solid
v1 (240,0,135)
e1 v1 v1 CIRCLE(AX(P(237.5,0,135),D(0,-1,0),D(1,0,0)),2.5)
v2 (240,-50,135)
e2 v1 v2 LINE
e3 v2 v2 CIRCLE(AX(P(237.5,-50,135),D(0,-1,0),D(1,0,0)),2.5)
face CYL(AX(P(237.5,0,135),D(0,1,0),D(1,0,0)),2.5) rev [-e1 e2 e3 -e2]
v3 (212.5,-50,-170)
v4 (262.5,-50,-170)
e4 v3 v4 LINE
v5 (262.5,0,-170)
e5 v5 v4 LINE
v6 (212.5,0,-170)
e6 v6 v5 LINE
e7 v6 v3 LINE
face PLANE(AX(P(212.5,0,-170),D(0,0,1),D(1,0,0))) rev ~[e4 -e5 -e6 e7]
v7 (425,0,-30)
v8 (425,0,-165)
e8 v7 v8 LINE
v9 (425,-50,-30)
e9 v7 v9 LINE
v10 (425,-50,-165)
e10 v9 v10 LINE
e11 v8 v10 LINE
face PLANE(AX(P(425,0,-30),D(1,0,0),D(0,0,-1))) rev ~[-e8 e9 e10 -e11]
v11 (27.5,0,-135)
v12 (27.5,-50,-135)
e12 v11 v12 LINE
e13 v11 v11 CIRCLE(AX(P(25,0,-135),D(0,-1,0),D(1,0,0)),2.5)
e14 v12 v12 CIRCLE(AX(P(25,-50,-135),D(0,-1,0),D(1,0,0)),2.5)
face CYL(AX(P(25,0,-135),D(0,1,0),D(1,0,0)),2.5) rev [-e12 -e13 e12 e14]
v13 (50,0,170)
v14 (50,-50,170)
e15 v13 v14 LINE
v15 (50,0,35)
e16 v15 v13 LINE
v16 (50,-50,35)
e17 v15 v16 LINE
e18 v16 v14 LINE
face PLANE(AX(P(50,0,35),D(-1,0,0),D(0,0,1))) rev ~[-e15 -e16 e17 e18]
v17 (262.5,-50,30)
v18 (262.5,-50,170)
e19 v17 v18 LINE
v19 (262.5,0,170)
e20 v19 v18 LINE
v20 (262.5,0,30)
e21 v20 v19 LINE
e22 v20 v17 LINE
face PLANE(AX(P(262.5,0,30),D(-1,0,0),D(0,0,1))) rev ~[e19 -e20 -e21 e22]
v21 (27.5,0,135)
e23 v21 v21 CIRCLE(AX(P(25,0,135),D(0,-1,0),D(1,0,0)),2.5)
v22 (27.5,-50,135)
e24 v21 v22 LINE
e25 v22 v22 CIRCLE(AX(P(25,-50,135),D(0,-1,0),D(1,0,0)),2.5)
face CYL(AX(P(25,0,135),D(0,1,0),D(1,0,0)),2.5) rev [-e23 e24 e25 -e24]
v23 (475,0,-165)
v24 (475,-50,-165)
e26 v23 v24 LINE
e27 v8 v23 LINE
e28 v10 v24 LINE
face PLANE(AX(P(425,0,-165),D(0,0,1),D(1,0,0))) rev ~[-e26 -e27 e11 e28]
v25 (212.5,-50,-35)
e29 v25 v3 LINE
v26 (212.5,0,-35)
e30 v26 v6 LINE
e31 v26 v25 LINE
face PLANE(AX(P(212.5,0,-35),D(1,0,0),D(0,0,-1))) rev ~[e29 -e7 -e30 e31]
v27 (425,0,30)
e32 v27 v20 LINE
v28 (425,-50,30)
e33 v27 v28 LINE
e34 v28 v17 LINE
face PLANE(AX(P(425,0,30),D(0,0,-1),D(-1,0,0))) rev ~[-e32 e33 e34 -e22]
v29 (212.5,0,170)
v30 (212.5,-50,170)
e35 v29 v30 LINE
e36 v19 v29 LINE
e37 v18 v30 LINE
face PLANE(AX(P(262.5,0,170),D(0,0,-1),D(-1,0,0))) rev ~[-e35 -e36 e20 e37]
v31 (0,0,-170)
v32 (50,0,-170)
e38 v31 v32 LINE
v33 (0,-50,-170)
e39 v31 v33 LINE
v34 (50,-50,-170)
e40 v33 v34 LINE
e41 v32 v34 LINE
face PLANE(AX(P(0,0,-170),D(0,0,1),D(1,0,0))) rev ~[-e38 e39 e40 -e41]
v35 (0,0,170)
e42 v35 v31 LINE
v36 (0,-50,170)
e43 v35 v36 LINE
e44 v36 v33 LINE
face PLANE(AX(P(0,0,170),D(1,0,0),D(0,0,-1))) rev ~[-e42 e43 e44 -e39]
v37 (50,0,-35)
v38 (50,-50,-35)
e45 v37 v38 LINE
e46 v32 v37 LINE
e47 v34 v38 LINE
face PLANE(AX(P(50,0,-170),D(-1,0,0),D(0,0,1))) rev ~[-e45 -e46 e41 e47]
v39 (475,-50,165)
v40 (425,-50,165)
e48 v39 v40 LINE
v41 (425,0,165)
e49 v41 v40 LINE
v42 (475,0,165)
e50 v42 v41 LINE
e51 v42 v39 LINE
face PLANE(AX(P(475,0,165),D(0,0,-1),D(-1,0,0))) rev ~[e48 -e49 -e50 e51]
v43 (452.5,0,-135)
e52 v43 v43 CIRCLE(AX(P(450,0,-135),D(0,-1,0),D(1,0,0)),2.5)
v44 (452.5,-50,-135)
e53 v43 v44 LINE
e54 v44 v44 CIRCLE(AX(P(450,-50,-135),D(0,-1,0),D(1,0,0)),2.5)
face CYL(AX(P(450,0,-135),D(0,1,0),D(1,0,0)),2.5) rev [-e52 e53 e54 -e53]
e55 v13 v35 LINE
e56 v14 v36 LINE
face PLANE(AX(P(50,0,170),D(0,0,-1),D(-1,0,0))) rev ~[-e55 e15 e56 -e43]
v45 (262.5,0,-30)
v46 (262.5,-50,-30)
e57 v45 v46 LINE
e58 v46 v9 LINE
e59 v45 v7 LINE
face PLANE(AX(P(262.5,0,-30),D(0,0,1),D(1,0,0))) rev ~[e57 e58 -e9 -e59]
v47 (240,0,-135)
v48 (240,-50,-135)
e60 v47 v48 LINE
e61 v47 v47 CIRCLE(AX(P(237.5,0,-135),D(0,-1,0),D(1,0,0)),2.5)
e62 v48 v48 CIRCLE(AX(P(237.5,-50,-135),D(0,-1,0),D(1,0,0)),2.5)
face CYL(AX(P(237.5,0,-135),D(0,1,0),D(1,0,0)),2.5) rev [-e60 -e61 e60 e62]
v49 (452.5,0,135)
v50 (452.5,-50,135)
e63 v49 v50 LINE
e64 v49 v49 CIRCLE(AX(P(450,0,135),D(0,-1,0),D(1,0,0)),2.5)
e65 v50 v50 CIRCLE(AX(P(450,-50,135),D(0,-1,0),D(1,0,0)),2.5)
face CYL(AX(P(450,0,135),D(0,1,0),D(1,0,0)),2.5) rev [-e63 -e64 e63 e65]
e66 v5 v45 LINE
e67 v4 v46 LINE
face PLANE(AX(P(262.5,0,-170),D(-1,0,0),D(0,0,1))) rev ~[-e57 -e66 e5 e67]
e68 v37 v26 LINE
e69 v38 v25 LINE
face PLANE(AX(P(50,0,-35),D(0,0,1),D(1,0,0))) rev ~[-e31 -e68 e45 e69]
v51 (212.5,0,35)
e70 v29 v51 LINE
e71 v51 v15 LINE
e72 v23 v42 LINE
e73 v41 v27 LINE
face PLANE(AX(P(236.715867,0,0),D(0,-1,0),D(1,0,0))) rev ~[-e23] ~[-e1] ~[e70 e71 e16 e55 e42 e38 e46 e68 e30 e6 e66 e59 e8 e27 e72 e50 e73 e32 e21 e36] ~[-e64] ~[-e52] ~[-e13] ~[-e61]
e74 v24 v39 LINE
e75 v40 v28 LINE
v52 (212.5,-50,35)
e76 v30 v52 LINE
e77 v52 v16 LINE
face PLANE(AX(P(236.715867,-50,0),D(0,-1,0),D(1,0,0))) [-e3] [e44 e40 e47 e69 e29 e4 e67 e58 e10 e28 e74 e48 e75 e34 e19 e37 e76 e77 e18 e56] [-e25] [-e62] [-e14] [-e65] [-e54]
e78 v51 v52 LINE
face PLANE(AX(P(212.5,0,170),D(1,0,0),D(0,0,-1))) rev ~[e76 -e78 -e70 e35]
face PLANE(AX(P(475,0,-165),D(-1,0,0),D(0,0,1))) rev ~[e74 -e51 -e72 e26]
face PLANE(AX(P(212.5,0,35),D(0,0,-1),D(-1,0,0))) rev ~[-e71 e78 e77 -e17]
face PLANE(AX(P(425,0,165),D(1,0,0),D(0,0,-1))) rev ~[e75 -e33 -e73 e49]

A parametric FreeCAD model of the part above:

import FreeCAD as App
import Part
import Sketcher
Q = App.Units.Quantity


def add_polygon(sketch, points):
    """Adds a closed chain of lines whose ends are joined by coincident constraints."""
    first, n = sketch.GeometryCount, len(points)
    for a, b in zip(points, points[1:] + points[:1]):
        sketch.addGeometry(Part.LineSegment(App.Vector(*a, 0), App.Vector(*b, 0)), False)
    for i in range(n):
        sketch.addConstraint(Sketcher.Constraint("Coincident", first + i, 2, first + (i + 1) % n, 1))

doc = App.newDocument("Part")
body = doc.addObject("PartDesign::Body", "Body")

sketch1 = body.newObject("Sketcher::SketchObject", "Sketch")
sketch1.AttachmentSupport = (doc.getObject("XZ_Plane"), [""])
sketch1.MapMode = "FlatFace"
add_polygon(sketch1, [(0, 170), (0, -170), (50, -170), (50, -35), (212.5, -35), (212.5, -170), (262.5, -170), (262.5, -30), (425, -30), (425, -165), (475, -165), (475, 165), (425, 165), (425, 30), (262.5, 30), (262.5, 170), (212.5, 170), (212.5, 35), (50, 35), (50, 170)])
sketch1.addGeometry(Part.Circle(App.Vector(25, -135, 0), App.Vector(0, 0, 1), 2.5), False)
sketch1.addGeometry(Part.Circle(App.Vector(237.5, -135, 0), App.Vector(0, 0, 1), 2.5), False)
sketch1.addGeometry(Part.Circle(App.Vector(450, -135, 0), App.Vector(0, 0, 1), 2.5), False)
sketch1.addGeometry(Part.Circle(App.Vector(25, 135, 0), App.Vector(0, 0, 1), 2.5), False)
sketch1.addGeometry(Part.Circle(App.Vector(237.5, 135, 0), App.Vector(0, 0, 1), 2.5), False)
sketch1.addGeometry(Part.Circle(App.Vector(450, 135, 0), App.Vector(0, 0, 1), 2.5), False)
sketch1.addConstraint(Sketcher.Constraint("Vertical", 0))
sketch1.addConstraint(Sketcher.Constraint("Horizontal", 1))
sketch1.addConstraint(Sketcher.Constraint("Vertical", 2))
sketch1.addConstraint(Sketcher.Constraint("Horizontal", 3))
sketch1.addConstraint(Sketcher.Constraint("Vertical", 4))
sketch1.addConstraint(Sketcher.Constraint("Horizontal", 5))
sketch1.addConstraint(Sketcher.Constraint("Vertical", 6))
sketch1.addConstraint(Sketcher.Constraint("Horizontal", 7))
sketch1.addConstraint(Sketcher.Constraint("Vertical", 8))
sketch1.addConstraint(Sketcher.Constraint("Horizontal", 9))
sketch1.addConstraint(Sketcher.Constraint("Vertical", 10))
sketch1.addConstraint(Sketcher.Constraint("Horizontal", 11))
sketch1.addConstraint(Sketcher.Constraint("Vertical", 12))
sketch1.addConstraint(Sketcher.Constraint("Horizontal", 13))
sketch1.addConstraint(Sketcher.Constraint("Vertical", 14))
sketch1.addConstraint(Sketcher.Constraint("Horizontal", 15))
sketch1.addConstraint(Sketcher.Constraint("Vertical", 16))
sketch1.addConstraint(Sketcher.Constraint("Horizontal", 17))
sketch1.addConstraint(Sketcher.Constraint("Vertical", 18))
sketch1.addConstraint(Sketcher.Constraint("Horizontal", 19))
sketch1.addConstraint(Sketcher.Constraint("Equal", 20, 21))
sketch1.addConstraint(Sketcher.Constraint("Equal", 21, 22))
sketch1.addConstraint(Sketcher.Constraint("Equal", 22, 23))
sketch1.addConstraint(Sketcher.Constraint("Equal", 23, 24))
sketch1.addConstraint(Sketcher.Constraint("Equal", 24, 25))
sketch1.addConstraint(Sketcher.Constraint("Symmetric", 0, 2, 19, 2, -1, 1))
sketch1.addConstraint(Sketcher.Constraint("Symmetric", 20, 3, 23, 3, -1))
sketch1.addConstraint(Sketcher.Constraint("Symmetric", 21, 3, 24, 3, -1))
sketch1.addConstraint(Sketcher.Constraint("Symmetric", 22, 3, 25, 3, -1))
sketch1.addConstraint(Sketcher.Constraint("Symmetric", 8, 2, 11, 2, -1))
sketch1.addConstraint(Sketcher.Constraint("Symmetric", 6, 2, 13, 2, -1))
sketch1.addConstraint(Sketcher.Constraint("Symmetric", 4, 2, 15, 2, -1))
sketch1.addConstraint(Sketcher.Constraint("Symmetric", 2, 2, 17, 2, -1))
sketch1.addConstraint(Sketcher.Constraint("Horizontal", 20, 3, 21, 3))
sketch1.addConstraint(Sketcher.Constraint("Horizontal", 21, 3, 22, 3))
sketch1.addConstraint(Sketcher.Constraint("Horizontal", 1, 2, 4, 2))
sketch1.addConstraint(Sketcher.Constraint("Equal", 1, 5))
sketch1.addConstraint(Sketcher.Constraint("Equal", 3, 7))
sketch1.addConstraint(Sketcher.Constraint("Equal", 5, 9))
sketch1.addConstraint(Sketcher.Constraint("Equal", 4, 8))
sketch1.addConstraint(Sketcher.Constraint("Diameter", 20, Q("5 mm")))
sketch1.addConstraint(Sketcher.Constraint("DistanceX", 1, 1, 1, 2, Q("50 mm")))
sketch1.addConstraint(Sketcher.Constraint("DistanceY", 0, 2, 0, 1, Q("340 mm")))
sketch1.addConstraint(Sketcher.Constraint("DistanceY", 2, 1, 2, 2, Q("135 mm")))
sketch1.addConstraint(Sketcher.Constraint("DistanceY", 6, 1, 6, 2, Q("140 mm")))
sketch1.addConstraint(Sketcher.Constraint("DistanceX", 3, 1, 3, 2, Q("162.5 mm")))
sketch1.addConstraint(Sketcher.Constraint("DistanceX", -1, 1, 20, 3, Q("25 mm")))
sketch1.addConstraint(Sketcher.Constraint("DistanceY", 20, 3, -1, 1, Q("135 mm")))
sketch1.addConstraint(Sketcher.Constraint("DistanceX", -1, 1, 22, 3, Q("450 mm")))
sketch1.addConstraint(Sketcher.Constraint("DistanceX", 3, 2, 21, 3, Q("25 mm")))
pad1 = body.newObject("PartDesign::Pad", "Pad")
pad1.Profile = sketch1
pad1.Length = 50

doc.recompute()
